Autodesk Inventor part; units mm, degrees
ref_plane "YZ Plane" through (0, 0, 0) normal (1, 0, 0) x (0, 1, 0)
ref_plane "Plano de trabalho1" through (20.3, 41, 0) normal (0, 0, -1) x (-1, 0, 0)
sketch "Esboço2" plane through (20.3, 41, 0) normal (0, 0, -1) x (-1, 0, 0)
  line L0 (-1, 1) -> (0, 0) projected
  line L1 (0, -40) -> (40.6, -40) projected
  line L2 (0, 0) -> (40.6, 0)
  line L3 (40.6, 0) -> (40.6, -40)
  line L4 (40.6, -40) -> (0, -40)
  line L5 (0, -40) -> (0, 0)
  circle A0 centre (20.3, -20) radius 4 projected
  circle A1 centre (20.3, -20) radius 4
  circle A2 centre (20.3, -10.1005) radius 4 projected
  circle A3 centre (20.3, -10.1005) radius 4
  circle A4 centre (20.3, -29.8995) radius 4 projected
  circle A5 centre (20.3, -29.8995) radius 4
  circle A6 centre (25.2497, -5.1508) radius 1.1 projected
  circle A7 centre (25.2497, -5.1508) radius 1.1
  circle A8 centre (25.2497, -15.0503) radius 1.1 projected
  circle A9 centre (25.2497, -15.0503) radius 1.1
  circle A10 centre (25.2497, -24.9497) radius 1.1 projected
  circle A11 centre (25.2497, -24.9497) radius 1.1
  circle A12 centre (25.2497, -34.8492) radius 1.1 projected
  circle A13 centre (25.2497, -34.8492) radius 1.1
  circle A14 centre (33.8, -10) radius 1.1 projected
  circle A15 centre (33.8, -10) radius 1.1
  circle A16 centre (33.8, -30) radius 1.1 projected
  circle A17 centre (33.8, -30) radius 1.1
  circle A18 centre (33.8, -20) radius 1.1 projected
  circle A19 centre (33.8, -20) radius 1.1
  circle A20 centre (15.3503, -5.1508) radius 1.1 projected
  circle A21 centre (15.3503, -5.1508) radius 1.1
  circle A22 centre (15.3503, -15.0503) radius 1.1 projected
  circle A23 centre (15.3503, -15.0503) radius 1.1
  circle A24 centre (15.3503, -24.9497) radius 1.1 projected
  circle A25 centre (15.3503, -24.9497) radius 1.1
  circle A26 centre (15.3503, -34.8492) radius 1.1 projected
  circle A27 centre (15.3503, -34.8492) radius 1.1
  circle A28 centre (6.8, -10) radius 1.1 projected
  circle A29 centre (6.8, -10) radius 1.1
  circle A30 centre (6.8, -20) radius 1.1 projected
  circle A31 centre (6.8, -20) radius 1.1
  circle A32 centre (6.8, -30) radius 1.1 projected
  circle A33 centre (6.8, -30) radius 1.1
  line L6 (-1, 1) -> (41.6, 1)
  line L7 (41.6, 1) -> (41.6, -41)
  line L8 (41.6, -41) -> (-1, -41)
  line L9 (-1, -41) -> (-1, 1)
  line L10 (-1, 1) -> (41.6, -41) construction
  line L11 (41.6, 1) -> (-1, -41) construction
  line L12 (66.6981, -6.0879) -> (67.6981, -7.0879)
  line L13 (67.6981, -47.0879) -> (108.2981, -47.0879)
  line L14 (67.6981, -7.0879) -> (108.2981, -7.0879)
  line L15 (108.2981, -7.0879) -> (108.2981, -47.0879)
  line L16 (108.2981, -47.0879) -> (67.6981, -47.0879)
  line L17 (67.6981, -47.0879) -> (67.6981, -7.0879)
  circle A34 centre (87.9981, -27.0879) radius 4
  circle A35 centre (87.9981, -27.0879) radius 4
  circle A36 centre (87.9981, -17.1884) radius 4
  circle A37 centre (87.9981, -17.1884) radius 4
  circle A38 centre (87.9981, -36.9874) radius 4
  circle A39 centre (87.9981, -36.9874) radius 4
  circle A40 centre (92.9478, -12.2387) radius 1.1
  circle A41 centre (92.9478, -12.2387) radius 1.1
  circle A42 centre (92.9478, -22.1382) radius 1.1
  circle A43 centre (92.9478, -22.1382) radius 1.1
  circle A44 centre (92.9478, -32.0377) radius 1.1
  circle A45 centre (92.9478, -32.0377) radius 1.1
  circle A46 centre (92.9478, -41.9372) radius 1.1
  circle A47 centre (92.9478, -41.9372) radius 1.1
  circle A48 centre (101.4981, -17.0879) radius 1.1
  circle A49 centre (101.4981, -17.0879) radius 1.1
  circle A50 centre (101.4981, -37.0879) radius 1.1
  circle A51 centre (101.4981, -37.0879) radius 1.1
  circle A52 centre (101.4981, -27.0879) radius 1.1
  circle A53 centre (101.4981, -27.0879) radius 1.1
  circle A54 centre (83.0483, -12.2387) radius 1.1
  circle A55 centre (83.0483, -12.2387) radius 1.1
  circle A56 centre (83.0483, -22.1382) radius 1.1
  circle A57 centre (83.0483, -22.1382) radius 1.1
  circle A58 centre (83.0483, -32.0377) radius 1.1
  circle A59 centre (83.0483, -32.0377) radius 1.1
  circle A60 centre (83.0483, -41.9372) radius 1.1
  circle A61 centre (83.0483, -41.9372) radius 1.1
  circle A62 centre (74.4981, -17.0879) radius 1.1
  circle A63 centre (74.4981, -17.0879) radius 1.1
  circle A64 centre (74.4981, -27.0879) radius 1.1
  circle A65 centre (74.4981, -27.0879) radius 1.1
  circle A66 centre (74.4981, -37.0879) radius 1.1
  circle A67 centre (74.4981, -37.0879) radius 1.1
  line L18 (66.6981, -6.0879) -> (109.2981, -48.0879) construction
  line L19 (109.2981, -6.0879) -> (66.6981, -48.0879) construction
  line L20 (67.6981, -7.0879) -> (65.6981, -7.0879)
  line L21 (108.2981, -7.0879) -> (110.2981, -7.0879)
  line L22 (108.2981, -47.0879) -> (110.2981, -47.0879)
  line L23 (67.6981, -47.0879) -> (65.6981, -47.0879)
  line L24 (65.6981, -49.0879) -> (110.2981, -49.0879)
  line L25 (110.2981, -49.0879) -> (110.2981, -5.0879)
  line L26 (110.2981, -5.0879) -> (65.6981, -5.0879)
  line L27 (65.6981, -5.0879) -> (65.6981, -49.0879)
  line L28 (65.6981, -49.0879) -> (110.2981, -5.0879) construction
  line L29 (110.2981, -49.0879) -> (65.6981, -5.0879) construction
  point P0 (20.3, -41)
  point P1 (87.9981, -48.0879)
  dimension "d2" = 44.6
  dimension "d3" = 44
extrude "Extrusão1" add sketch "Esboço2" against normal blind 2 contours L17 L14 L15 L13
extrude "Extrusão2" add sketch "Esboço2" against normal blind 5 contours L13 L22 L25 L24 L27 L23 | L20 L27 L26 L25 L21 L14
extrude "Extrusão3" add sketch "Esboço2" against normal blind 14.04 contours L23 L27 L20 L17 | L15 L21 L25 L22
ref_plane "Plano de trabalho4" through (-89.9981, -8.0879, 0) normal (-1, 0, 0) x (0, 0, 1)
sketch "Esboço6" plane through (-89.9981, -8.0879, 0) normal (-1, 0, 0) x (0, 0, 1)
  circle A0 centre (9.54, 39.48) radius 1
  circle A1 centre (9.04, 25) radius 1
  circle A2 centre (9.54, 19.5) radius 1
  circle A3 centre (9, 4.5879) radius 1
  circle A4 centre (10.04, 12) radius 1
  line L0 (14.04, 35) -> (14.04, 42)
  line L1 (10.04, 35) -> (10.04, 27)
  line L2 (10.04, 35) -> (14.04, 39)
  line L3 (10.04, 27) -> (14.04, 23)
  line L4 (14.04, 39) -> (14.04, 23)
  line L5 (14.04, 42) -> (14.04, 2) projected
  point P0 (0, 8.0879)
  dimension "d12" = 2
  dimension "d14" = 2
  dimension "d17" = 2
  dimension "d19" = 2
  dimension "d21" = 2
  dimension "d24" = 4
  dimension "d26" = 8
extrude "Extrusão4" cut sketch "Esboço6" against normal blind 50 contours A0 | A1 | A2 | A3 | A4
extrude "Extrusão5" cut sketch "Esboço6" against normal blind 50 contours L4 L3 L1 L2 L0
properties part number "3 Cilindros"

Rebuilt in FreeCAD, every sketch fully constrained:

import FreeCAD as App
import Part
import Sketcher

V = App.Vector
Q = App.Units.Quantity

doc = App.newDocument("Part")
body = doc.addObject("PartDesign::Body", "Body")

# Sketch on XY plane
sketch1 = doc.addObject("Sketcher::SketchObject", "Sketch")
body.addObject(sketch1)
sketch1.AttachmentSupport = (doc.XY_Plane, [""])
sketch1.MapMode = "FlatFace"
sketch1.addGeometry([
    Part.LineSegment(V(-47.4, 33.9, 0), V(-47.4, -6.1, 0)),  # 0
    Part.LineSegment(V(-47.4, -6.1, 0), V(-88, -6.1, 0)),  # 1
    Part.LineSegment(V(-88, -6.1, 0), V(-88, 33.9, 0)),  # 2
    Part.LineSegment(V(-88, 33.9, 0), V(-47.4, 33.9, 0)),  # 3
    Part.Circle(V(-54.2, 3.9, 0), V(0, 0, 1), 1.1),  # 4
    Part.Circle(V(-62.7, -0.9, 0), V(0, 0, 1), 1.1),  # 5
    Part.Circle(V(-72.6, -0.9, 0), V(0, 0, 1), 1.1),  # 6
    Part.Circle(V(-67.7, 4, 0), V(0, 0, 1), 4),  # 7
    Part.Circle(V(-81.2, 3.9, 0), V(0, 0, 1), 1.1),  # 8
    Part.Circle(V(-54.2, 13.9, 0), V(0, 0, 1), 1.1),  # 9
    Part.Circle(V(-62.7, 9, 0), V(0, 0, 1), 1.1),  # 10
    Part.Circle(V(-72.6, 9, 0), V(0, 0, 1), 1.1),  # 11
    Part.Circle(V(-67.7, 13.9, 0), V(0, 0, 1), 4),  # 12
    Part.Circle(V(-81.2, 13.9, 0), V(0, 0, 1), 1.1),  # 13
    Part.Circle(V(-54.2, 23.9, 0), V(0, 0, 1), 1.1),  # 14
    Part.Circle(V(-62.7, 18.9, 0), V(0, 0, 1), 1.1),  # 15
    Part.Circle(V(-72.6, 18.9, 0), V(0, 0, 1), 1.1),  # 16
    Part.Circle(V(-67.7, 23.8, 0), V(0, 0, 1), 4),  # 17
    Part.Circle(V(-62.7, 28.8, 0), V(0, 0, 1), 1.1),  # 18
    Part.Circle(V(-72.6, 28.8, 0), V(0, 0, 1), 1.1),  # 19
    Part.Circle(V(-81.2, 23.9, 0), V(0, 0, 1), 1.1),  # 20
], False)
sketch1.addConstraint([
    Sketcher.Constraint("Coincident", 0, 2, 1, 1),
    Sketcher.Constraint("Coincident", 1, 2, 2, 1),
    Sketcher.Constraint("Coincident", 2, 2, 3, 1),
    Sketcher.Constraint("Coincident", 3, 2, 0, 1),
    Sketcher.Constraint("Vertical", 0),
    Sketcher.Constraint("Horizontal", 1),
    Sketcher.Constraint("Vertical", 2),
    Sketcher.Constraint("Horizontal", 3),
    Sketcher.Constraint("Equal", 4, 5),
    Sketcher.Constraint("Equal", 5, 6),
    Sketcher.Constraint("Equal", 6, 8),
    Sketcher.Constraint("Equal", 8, 9),
    Sketcher.Constraint("Equal", 9, 10),
    Sketcher.Constraint("Equal", 10, 11),
    Sketcher.Constraint("Equal", 7, 12),
    Sketcher.Constraint("Equal", 11, 13),
    Sketcher.Constraint("Equal", 13, 14),
    Sketcher.Constraint("Equal", 14, 15),
    Sketcher.Constraint("Equal", 15, 16),
    Sketcher.Constraint("Equal", 12, 17),
    Sketcher.Constraint("Equal", 16, 18),
    Sketcher.Constraint("Equal", 18, 19),
    Sketcher.Constraint("Equal", 19, 20),
    Sketcher.Constraint("Horizontal", 5, 3, 6, 3),
    Sketcher.Constraint("Horizontal", 4, 3, 8, 3),
    Sketcher.Constraint("Horizontal", 10, 3, 11, 3),
    Sketcher.Constraint("Horizontal", 9, 3, 12, 3),
    Sketcher.Constraint("Horizontal", 12, 3, 13, 3),
    Sketcher.Constraint("Horizontal", 15, 3, 16, 3),
    Sketcher.Constraint("Horizontal", 18, 3, 19, 3),
    Sketcher.Constraint("Horizontal", 14, 3, 20, 3),
    Sketcher.Constraint("Vertical", 4, 3, 9, 3),
    Sketcher.Constraint("Vertical", 5, 3, 10, 3),
    Sketcher.Constraint("Vertical", 6, 3, 11, 3),
    Sketcher.Constraint("Vertical", 7, 3, 12, 3),
    Sketcher.Constraint("Vertical", 8, 3, 13, 3),
    Sketcher.Constraint("Vertical", 9, 3, 14, 3),
    Sketcher.Constraint("Vertical", 10, 3, 15, 3),
    Sketcher.Constraint("Vertical", 11, 3, 16, 3),
    Sketcher.Constraint("Vertical", 12, 3, 17, 3),
    Sketcher.Constraint("Vertical", 15, 3, 18, 3),
    Sketcher.Constraint("Vertical", 16, 3, 19, 3),
    Sketcher.Constraint("Vertical", 13, 3, 20, 3),
    Sketcher.Constraint("Diameter", 7, Q("8 mm")),
    Sketcher.Constraint("Diameter", 4, Q("2.2 mm")),
    Sketcher.Constraint("DistanceY", 0, 2, 0, 1, Q("40 mm")),
    Sketcher.Constraint("DistanceX", 1, 2, 1, 1, Q("40.6 mm")),
    Sketcher.Constraint("DistanceX", 8, 3, 4, 3, Q("27 mm")),
    Sketcher.Constraint("DistanceY", 4, 3, 9, 3, Q("10 mm")),
    Sketcher.Constraint("DistanceY", 9, 3, 14, 3, Q("10 mm")),
    Sketcher.Constraint("DistanceY", 0, 2, 4, 3, Q("10 mm")),
    Sketcher.Constraint("DistanceX", 7, 3, 4, 3, Q("13.5 mm")),
    Sketcher.Constraint("DistanceX", 4, 3, 0, 2, Q("6.8 mm")),
    Sketcher.Constraint("DistanceX", 4, 3, -1, 1, Q("54.198 mm")),
    Sketcher.Constraint("DistanceY", -1, 1, 4, 3, Q("3.912 mm")),
    Sketcher.Constraint("DistanceX", 5, 3, -1, 1, Q("62.7483 mm")),
    Sketcher.Constraint("DistanceY", 5, 3, -1, 1, Q("0.9372 mm")),
    Sketcher.Constraint("DistanceX", 6, 3, -1, 1, Q("72.6478 mm")),
    Sketcher.Constraint("DistanceY", -1, 1, 7, 3, Q("4.0126 mm")),
    Sketcher.Constraint("DistanceY", -1, 1, 10, 3, Q("8.9623 mm")),
    Sketcher.Constraint("DistanceY", -1, 1, 15, 3, Q("18.8618 mm")),
    Sketcher.Constraint("DistanceY", -1, 1, 17, 3, Q("23.8116 mm")),
    Sketcher.Constraint("DistanceY", -1, 1, 18, 3, Q("28.7613 mm")),
])
pad1 = doc.addObject("PartDesign::Pad", "Pad")
body.addObject(pad1)
pad1.Profile = sketch1
pad1.Length = 2

# Sketch on XY plane
sketch2 = doc.addObject("Sketcher::SketchObject", "Sketch001")
body.addObject(sketch2)
sketch2.AttachmentSupport = (doc.XY_Plane, [""])
sketch2.MapMode = "FlatFace"
sketch2.addGeometry([
    Part.LineSegment(V(-90, -6.1, 0), V(-45.4, -6.1, 0)),  # 0
    Part.LineSegment(V(-45.4, -6.1, 0), V(-45.4, -8.1, 0)),  # 1
    Part.LineSegment(V(-45.4, -8.1, 0), V(-90, -8.1, 0)),  # 2
    Part.LineSegment(V(-90, -8.1, 0), V(-90, -6.1, 0)),  # 3
    Part.LineSegment(V(-45.4, 33.9, 0), V(-90, 33.9, 0)),  # 4
    Part.LineSegment(V(-90, 33.9, 0), V(-90, 35.9, 0)),  # 5
    Part.LineSegment(V(-90, 35.9, 0), V(-45.4, 35.9, 0)),  # 6
    Part.LineSegment(V(-45.4, 35.9, 0), V(-45.4, 33.9, 0)),  # 7
], False)
sketch2.addConstraint([
    Sketcher.Constraint("Coincident", 0, 2, 1, 1),
    Sketcher.Constraint("Coincident", 1, 2, 2, 1),
    Sketcher.Constraint("Coincident", 2, 2, 3, 1),
    Sketcher.Constraint("Coincident", 3, 2, 0, 1),
    Sketcher.Constraint("Coincident", 4, 2, 5, 1),
    Sketcher.Constraint("Coincident", 5, 2, 6, 1),
    Sketcher.Constraint("Coincident", 6, 2, 7, 1),
    Sketcher.Constraint("Coincident", 7, 2, 4, 1),
    Sketcher.Constraint("Horizontal", 0),
    Sketcher.Constraint("Vertical", 1),
    Sketcher.Constraint("Horizontal", 2),
    Sketcher.Constraint("Vertical", 3),
    Sketcher.Constraint("Horizontal", 4),
    Sketcher.Constraint("Vertical", 5),
    Sketcher.Constraint("Horizontal", 6),
    Sketcher.Constraint("Vertical", 7),
    Sketcher.Constraint("Vertical", 3, 2, 4, 2),
    Sketcher.Constraint("Vertical", 1, 2, 6, 2),
    Sketcher.Constraint("Equal", 3, 5),
    Sketcher.Constraint("DistanceX", 0, 1, 0, 2, Q("44.6 mm")),
    Sketcher.Constraint("DistanceY", 2, 2, 5, 2, Q("44 mm")),
    Sketcher.Constraint("DistanceY", 1, 2, 1, 1, Q("2 mm")),
    Sketcher.Constraint("DistanceX", 0, 2, -1, 1, Q("45.398 mm")),
    Sketcher.Constraint("DistanceY", 0, 2, -1, 1, Q("6.088 mm")),
])
pad2 = doc.addObject("PartDesign::Pad", "Pad001")
body.addObject(pad2)
pad2.Profile = sketch2
pad2.Length = 5

# Sketch on XY plane
sketch3 = doc.addObject("Sketcher::SketchObject", "Sketch002")
body.addObject(sketch3)
sketch3.AttachmentSupport = (doc.XY_Plane, [""])
sketch3.MapMode = "FlatFace"
sketch3.addGeometry([
    Part.LineSegment(V(-45.4, -6.1, 0), V(-47.4, -6.1, 0)),  # 0
    Part.LineSegment(V(-47.4, -6.1, 0), V(-47.4, 33.9, 0)),  # 1
    Part.LineSegment(V(-47.4, 33.9, 0), V(-45.4, 33.9, 0)),  # 2
    Part.LineSegment(V(-45.4, 33.9, 0), V(-45.4, -6.1, 0)),  # 3
    Part.LineSegment(V(-88, 33.9, 0), V(-88, -6.1, 0)),  # 4
    Part.LineSegment(V(-88, -6.1, 0), V(-90, -6.1, 0)),  # 5
    Part.LineSegment(V(-90, -6.1, 0), V(-90, 33.9, 0)),  # 6
    Part.LineSegment(V(-90, 33.9, 0), V(-88, 33.9, 0)),  # 7
], False)
sketch3.addConstraint([
    Sketcher.Constraint("Coincident", 0, 2, 1, 1),
    Sketcher.Constraint("Coincident", 1, 2, 2, 1),
    Sketcher.Constraint("Coincident", 2, 2, 3, 1),
    Sketcher.Constraint("Coincident", 3, 2, 0, 1),
    Sketcher.Constraint("Coincident", 4, 2, 5, 1),
    Sketcher.Constraint("Coincident", 5, 2, 6, 1),
    Sketcher.Constraint("Coincident", 6, 2, 7, 1),
    Sketcher.Constraint("Coincident", 7, 2, 4, 1),
    Sketcher.Constraint("Horizontal", 0),
    Sketcher.Constraint("Vertical", 1),
    Sketcher.Constraint("Horizontal", 2),
    Sketcher.Constraint("Vertical", 3),
    Sketcher.Constraint("Vertical", 4),
    Sketcher.Constraint("Horizontal", 5),
    Sketcher.Constraint("Vertical", 6),
    Sketcher.Constraint("Horizontal", 7),
    Sketcher.Constraint("Horizontal", 3, 2, 4, 2),
    Sketcher.Constraint("Horizontal", 2, 2, 6, 2),
    Sketcher.Constraint("Equal", 2, 5),
    Sketcher.Constraint("DistanceX", 5, 2, 3, 2, Q("44.6 mm")),
    Sketcher.Constraint("DistanceX", 0, 2, 0, 1, Q("2 mm")),
    Sketcher.Constraint("DistanceY", 1, 1, 1, 2, Q("40 mm")),
    Sketcher.Constraint("DistanceX", 0, 2, -1, 1, Q("47.398 mm")),
    Sketcher.Constraint("DistanceY", 0, 2, -1, 1, Q("6.088 mm")),
])
pad3 = doc.addObject("PartDesign::Pad", "Pad002")
body.addObject(pad3)
pad3.Profile = sketch3
pad3.Length = 14.04

# Sketch on YZ plane
sketch4 = doc.addObject("Sketcher::SketchObject", "Sketch003")
body.addObject(sketch4)
sketch4.AttachmentSupport = (doc.YZ_Plane, [""])
sketch4.MapMode = "FlatFace"
sketch4.AttachmentOffset = App.Placement(V(0, 0, -89.9981), App.Rotation())
sketch4.addGeometry([
    Part.Circle(V(31.4, 9.5, 0), V(0, 0, 1), 1),  # 0
    Part.Circle(V(16.9, 9, 0), V(0, 0, 1), 1),  # 1
    Part.Circle(V(11.4, 9.5, 0), V(0, 0, 1), 1),  # 2
    Part.Circle(V(-3.5, 9, 0), V(0, 0, 1), 1),  # 3
    Part.Circle(V(3.9, 10, 0), V(0, 0, 1), 1),  # 4
], False)
sketch4.addConstraint([
    Sketcher.Constraint("Equal", 0, 1),
    Sketcher.Constraint("Equal", 1, 2),
    Sketcher.Constraint("Equal", 2, 3),
    Sketcher.Constraint("Equal", 3, 4),
    Sketcher.Constraint("Horizontal", 0, 3, 2, 3),
    Sketcher.Constraint("Diameter", 0, Q("2 mm")),
    Sketcher.Constraint("DistanceY", -1, 1, 3, 3, Q("9 mm")),
    Sketcher.Constraint("DistanceX", 4, 3, 1, 3, Q("13 mm")),
    Sketcher.Constraint("DistanceY", 1, 3, 4, 3, Q("1 mm")),
    Sketcher.Constraint("DistanceX", 3, 3, -1, 1, Q("3.5 mm")),
    Sketcher.Constraint("DistanceY", 1, 3, 0, 3, Q("0.5 mm")),
    Sketcher.Constraint("DistanceX", 2, 3, 1, 3, Q("5.5 mm")),
    Sketcher.Constraint("DistanceY", -1, 1, 0, 3, Q("9.54 mm")),
    Sketcher.Constraint("DistanceX", 1, 3, 0, 3, Q("14.48 mm")),
    Sketcher.Constraint("DistanceX", -1, 1, 0, 3, Q("31.392 mm")),
])
pocket1 = doc.addObject("PartDesign::Pocket", "Pocket")
body.addObject(pocket1)
pocket1.Profile = sketch4
pocket1.Length = 50
pocket1.Reversed = True

# Sketch on YZ plane
sketch5 = doc.addObject("Sketcher::SketchObject", "Sketch004")
body.addObject(sketch5)
sketch5.AttachmentSupport = (doc.YZ_Plane, [""])
sketch5.MapMode = "FlatFace"
sketch5.AttachmentOffset = App.Placement(V(0, 0, -89.9981), App.Rotation())
sketch5.addGeometry([
    Part.LineSegment(V(15, 14, 0), V(31, 14, 0)),
    Part.LineSegment(V(31, 14, 0), V(27, 10, 0)),
    Part.LineSegment(V(27, 10, 0), V(19, 10, 0)),
    Part.LineSegment(V(19, 10, 0), V(15, 14, 0)),
], False)
sketch5.addConstraint([
    Sketcher.Constraint("Coincident", 0, 2, 1, 1),
    Sketcher.Constraint("Coincident", 1, 2, 2, 1),
    Sketcher.Constraint("Coincident", 2, 2, 3, 1),
    Sketcher.Constraint("Coincident", 3, 2, 0, 1),
    Sketcher.Constraint("Horizontal", 0),
    Sketcher.Constraint("Horizontal", 2),
    Sketcher.Constraint("Perpendicular", 1, 3),
    Sketcher.Constraint("Equal", 1, 3),
    Sketcher.Constraint("DistanceX", 2, 2, 2, 1, Q("8 mm")),
    Sketcher.Constraint("DistanceX", 1, 2, 0, 2, Q("4 mm")),
    Sketcher.Constraint("DistanceY", -1, 1, 0, 2, Q("14.04 mm")),
    Sketcher.Constraint("DistanceX", -1, 1, 0, 2, Q("30.912 mm")),
])
pocket2 = doc.addObject("PartDesign::Pocket", "Pocket001")
body.addObject(pocket2)
pocket2.Profile = sketch5
pocket2.Length = 50
pocket2.Reversed = True

doc.recompute()
